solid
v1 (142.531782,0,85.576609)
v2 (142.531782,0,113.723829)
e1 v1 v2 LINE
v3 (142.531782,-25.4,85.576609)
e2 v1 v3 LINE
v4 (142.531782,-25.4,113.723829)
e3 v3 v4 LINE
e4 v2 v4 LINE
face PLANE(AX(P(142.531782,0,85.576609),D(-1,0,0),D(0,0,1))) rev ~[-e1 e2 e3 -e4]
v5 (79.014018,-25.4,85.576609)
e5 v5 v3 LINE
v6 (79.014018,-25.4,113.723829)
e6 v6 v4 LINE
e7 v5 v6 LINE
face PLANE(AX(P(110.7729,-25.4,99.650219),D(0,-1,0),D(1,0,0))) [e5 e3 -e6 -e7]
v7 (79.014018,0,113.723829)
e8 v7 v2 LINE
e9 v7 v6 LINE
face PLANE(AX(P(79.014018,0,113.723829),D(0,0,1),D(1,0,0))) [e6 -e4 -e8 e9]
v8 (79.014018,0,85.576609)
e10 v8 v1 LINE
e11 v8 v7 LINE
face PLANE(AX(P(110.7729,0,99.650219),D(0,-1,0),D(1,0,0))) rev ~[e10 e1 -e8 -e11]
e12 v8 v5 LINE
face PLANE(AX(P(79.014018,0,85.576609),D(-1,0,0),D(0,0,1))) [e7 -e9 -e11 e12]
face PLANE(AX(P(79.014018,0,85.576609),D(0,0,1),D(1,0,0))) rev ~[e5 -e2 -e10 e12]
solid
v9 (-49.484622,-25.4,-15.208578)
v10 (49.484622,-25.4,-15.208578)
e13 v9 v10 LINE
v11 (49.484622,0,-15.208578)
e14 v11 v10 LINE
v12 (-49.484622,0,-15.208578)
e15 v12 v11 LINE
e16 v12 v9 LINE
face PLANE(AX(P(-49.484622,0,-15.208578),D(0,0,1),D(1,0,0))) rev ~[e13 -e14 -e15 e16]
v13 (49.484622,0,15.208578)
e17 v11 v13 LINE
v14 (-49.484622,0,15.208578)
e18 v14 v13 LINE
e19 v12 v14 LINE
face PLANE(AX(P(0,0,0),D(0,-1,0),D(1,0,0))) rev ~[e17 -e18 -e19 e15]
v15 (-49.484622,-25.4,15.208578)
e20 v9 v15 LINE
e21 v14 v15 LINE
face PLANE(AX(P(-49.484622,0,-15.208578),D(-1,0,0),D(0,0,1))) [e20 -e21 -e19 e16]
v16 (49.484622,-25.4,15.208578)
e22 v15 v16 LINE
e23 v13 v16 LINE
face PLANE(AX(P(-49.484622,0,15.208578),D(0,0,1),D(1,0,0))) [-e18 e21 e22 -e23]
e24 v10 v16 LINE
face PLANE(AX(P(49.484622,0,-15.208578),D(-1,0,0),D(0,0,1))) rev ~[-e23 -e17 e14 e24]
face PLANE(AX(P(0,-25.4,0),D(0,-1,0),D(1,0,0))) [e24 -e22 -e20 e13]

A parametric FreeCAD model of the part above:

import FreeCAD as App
import Part
import Sketcher

V = App.Vector


def add_polygon(sketch, points):
    """Adds a closed chain of lines whose ends are joined by coincident constraints."""
    first, n = sketch.GeometryCount, len(points)
    for a, b in zip(points, points[1:] + points[:1]):
        sketch.addGeometry(Part.LineSegment(App.Vector(*a, 0), App.Vector(*b, 0)), False)
    for i in range(n):
        sketch.addConstraint(Sketcher.Constraint("Coincident", first + i, 2, first + (i + 1) % n, 1))

doc = App.newDocument("Part")
params = doc.addObject("Spreadsheet::Sheet", "Params")
for row, (alias, value) in enumerate([
    ("pad1_length", "1 in"),
], start=1):
    params.set(f"A{row}", alias)
    params.set(f"B{row}", "=" + value)
    params.setAlias(f"B{row}", alias)

body = doc.addObject("PartDesign::Body", "Body")
body.AllowCompound = True

sketch1 = body.newObject("Sketcher::SketchObject", "Sketch")
sketch1.AttachmentSupport = (doc.getObject("XZ_Plane"), [""])
sketch1.MapMode = "FlatFace"
add_polygon(sketch1, [(-49.484622, 15.208578), (-49.484622, -15.208578), (49.484622, -15.208578), (49.484622, 15.208578)])
add_polygon(sketch1, [(79.014018, 113.723829), (79.014018, 85.576609), (142.531782, 85.576609), (142.531782, 113.723829)])
sketch1.addConstraint([
    Sketcher.Constraint("Vertical", 0),
    Sketcher.Constraint("Horizontal", 1),
    Sketcher.Constraint("Vertical", 2),
    Sketcher.Constraint("Horizontal", 3),
    Sketcher.Constraint("Vertical", 4),
    Sketcher.Constraint("Horizontal", 5),
    Sketcher.Constraint("Vertical", 6),
    Sketcher.Constraint("Horizontal", 7),
    Sketcher.Constraint("Symmetric", 0, 2, 2, 2, -1, 1),
    Sketcher.Constraint("DistanceY", 4, 2, 4, 1, 28.14722),
    Sketcher.Constraint("DistanceX", 1, 1, 1, 2, 98.969244),
    Sketcher.Constraint("DistanceX", 5, 1, 5, 2, 63.517764),
    Sketcher.Constraint("DistanceY", 0, 2, 0, 1, 30.417156),
    Sketcher.Constraint("DistanceY", -1, 1, 4, 2, 85.576609),
    Sketcher.Constraint("DistanceX", -1, 1, 5, 2, 142.531782),
])
pad1 = body.newObject("PartDesign::Pad", "Pad")
pad1.Profile = sketch1
pad1.setExpression("Length", "Params.pad1_length")

doc.recompute()
